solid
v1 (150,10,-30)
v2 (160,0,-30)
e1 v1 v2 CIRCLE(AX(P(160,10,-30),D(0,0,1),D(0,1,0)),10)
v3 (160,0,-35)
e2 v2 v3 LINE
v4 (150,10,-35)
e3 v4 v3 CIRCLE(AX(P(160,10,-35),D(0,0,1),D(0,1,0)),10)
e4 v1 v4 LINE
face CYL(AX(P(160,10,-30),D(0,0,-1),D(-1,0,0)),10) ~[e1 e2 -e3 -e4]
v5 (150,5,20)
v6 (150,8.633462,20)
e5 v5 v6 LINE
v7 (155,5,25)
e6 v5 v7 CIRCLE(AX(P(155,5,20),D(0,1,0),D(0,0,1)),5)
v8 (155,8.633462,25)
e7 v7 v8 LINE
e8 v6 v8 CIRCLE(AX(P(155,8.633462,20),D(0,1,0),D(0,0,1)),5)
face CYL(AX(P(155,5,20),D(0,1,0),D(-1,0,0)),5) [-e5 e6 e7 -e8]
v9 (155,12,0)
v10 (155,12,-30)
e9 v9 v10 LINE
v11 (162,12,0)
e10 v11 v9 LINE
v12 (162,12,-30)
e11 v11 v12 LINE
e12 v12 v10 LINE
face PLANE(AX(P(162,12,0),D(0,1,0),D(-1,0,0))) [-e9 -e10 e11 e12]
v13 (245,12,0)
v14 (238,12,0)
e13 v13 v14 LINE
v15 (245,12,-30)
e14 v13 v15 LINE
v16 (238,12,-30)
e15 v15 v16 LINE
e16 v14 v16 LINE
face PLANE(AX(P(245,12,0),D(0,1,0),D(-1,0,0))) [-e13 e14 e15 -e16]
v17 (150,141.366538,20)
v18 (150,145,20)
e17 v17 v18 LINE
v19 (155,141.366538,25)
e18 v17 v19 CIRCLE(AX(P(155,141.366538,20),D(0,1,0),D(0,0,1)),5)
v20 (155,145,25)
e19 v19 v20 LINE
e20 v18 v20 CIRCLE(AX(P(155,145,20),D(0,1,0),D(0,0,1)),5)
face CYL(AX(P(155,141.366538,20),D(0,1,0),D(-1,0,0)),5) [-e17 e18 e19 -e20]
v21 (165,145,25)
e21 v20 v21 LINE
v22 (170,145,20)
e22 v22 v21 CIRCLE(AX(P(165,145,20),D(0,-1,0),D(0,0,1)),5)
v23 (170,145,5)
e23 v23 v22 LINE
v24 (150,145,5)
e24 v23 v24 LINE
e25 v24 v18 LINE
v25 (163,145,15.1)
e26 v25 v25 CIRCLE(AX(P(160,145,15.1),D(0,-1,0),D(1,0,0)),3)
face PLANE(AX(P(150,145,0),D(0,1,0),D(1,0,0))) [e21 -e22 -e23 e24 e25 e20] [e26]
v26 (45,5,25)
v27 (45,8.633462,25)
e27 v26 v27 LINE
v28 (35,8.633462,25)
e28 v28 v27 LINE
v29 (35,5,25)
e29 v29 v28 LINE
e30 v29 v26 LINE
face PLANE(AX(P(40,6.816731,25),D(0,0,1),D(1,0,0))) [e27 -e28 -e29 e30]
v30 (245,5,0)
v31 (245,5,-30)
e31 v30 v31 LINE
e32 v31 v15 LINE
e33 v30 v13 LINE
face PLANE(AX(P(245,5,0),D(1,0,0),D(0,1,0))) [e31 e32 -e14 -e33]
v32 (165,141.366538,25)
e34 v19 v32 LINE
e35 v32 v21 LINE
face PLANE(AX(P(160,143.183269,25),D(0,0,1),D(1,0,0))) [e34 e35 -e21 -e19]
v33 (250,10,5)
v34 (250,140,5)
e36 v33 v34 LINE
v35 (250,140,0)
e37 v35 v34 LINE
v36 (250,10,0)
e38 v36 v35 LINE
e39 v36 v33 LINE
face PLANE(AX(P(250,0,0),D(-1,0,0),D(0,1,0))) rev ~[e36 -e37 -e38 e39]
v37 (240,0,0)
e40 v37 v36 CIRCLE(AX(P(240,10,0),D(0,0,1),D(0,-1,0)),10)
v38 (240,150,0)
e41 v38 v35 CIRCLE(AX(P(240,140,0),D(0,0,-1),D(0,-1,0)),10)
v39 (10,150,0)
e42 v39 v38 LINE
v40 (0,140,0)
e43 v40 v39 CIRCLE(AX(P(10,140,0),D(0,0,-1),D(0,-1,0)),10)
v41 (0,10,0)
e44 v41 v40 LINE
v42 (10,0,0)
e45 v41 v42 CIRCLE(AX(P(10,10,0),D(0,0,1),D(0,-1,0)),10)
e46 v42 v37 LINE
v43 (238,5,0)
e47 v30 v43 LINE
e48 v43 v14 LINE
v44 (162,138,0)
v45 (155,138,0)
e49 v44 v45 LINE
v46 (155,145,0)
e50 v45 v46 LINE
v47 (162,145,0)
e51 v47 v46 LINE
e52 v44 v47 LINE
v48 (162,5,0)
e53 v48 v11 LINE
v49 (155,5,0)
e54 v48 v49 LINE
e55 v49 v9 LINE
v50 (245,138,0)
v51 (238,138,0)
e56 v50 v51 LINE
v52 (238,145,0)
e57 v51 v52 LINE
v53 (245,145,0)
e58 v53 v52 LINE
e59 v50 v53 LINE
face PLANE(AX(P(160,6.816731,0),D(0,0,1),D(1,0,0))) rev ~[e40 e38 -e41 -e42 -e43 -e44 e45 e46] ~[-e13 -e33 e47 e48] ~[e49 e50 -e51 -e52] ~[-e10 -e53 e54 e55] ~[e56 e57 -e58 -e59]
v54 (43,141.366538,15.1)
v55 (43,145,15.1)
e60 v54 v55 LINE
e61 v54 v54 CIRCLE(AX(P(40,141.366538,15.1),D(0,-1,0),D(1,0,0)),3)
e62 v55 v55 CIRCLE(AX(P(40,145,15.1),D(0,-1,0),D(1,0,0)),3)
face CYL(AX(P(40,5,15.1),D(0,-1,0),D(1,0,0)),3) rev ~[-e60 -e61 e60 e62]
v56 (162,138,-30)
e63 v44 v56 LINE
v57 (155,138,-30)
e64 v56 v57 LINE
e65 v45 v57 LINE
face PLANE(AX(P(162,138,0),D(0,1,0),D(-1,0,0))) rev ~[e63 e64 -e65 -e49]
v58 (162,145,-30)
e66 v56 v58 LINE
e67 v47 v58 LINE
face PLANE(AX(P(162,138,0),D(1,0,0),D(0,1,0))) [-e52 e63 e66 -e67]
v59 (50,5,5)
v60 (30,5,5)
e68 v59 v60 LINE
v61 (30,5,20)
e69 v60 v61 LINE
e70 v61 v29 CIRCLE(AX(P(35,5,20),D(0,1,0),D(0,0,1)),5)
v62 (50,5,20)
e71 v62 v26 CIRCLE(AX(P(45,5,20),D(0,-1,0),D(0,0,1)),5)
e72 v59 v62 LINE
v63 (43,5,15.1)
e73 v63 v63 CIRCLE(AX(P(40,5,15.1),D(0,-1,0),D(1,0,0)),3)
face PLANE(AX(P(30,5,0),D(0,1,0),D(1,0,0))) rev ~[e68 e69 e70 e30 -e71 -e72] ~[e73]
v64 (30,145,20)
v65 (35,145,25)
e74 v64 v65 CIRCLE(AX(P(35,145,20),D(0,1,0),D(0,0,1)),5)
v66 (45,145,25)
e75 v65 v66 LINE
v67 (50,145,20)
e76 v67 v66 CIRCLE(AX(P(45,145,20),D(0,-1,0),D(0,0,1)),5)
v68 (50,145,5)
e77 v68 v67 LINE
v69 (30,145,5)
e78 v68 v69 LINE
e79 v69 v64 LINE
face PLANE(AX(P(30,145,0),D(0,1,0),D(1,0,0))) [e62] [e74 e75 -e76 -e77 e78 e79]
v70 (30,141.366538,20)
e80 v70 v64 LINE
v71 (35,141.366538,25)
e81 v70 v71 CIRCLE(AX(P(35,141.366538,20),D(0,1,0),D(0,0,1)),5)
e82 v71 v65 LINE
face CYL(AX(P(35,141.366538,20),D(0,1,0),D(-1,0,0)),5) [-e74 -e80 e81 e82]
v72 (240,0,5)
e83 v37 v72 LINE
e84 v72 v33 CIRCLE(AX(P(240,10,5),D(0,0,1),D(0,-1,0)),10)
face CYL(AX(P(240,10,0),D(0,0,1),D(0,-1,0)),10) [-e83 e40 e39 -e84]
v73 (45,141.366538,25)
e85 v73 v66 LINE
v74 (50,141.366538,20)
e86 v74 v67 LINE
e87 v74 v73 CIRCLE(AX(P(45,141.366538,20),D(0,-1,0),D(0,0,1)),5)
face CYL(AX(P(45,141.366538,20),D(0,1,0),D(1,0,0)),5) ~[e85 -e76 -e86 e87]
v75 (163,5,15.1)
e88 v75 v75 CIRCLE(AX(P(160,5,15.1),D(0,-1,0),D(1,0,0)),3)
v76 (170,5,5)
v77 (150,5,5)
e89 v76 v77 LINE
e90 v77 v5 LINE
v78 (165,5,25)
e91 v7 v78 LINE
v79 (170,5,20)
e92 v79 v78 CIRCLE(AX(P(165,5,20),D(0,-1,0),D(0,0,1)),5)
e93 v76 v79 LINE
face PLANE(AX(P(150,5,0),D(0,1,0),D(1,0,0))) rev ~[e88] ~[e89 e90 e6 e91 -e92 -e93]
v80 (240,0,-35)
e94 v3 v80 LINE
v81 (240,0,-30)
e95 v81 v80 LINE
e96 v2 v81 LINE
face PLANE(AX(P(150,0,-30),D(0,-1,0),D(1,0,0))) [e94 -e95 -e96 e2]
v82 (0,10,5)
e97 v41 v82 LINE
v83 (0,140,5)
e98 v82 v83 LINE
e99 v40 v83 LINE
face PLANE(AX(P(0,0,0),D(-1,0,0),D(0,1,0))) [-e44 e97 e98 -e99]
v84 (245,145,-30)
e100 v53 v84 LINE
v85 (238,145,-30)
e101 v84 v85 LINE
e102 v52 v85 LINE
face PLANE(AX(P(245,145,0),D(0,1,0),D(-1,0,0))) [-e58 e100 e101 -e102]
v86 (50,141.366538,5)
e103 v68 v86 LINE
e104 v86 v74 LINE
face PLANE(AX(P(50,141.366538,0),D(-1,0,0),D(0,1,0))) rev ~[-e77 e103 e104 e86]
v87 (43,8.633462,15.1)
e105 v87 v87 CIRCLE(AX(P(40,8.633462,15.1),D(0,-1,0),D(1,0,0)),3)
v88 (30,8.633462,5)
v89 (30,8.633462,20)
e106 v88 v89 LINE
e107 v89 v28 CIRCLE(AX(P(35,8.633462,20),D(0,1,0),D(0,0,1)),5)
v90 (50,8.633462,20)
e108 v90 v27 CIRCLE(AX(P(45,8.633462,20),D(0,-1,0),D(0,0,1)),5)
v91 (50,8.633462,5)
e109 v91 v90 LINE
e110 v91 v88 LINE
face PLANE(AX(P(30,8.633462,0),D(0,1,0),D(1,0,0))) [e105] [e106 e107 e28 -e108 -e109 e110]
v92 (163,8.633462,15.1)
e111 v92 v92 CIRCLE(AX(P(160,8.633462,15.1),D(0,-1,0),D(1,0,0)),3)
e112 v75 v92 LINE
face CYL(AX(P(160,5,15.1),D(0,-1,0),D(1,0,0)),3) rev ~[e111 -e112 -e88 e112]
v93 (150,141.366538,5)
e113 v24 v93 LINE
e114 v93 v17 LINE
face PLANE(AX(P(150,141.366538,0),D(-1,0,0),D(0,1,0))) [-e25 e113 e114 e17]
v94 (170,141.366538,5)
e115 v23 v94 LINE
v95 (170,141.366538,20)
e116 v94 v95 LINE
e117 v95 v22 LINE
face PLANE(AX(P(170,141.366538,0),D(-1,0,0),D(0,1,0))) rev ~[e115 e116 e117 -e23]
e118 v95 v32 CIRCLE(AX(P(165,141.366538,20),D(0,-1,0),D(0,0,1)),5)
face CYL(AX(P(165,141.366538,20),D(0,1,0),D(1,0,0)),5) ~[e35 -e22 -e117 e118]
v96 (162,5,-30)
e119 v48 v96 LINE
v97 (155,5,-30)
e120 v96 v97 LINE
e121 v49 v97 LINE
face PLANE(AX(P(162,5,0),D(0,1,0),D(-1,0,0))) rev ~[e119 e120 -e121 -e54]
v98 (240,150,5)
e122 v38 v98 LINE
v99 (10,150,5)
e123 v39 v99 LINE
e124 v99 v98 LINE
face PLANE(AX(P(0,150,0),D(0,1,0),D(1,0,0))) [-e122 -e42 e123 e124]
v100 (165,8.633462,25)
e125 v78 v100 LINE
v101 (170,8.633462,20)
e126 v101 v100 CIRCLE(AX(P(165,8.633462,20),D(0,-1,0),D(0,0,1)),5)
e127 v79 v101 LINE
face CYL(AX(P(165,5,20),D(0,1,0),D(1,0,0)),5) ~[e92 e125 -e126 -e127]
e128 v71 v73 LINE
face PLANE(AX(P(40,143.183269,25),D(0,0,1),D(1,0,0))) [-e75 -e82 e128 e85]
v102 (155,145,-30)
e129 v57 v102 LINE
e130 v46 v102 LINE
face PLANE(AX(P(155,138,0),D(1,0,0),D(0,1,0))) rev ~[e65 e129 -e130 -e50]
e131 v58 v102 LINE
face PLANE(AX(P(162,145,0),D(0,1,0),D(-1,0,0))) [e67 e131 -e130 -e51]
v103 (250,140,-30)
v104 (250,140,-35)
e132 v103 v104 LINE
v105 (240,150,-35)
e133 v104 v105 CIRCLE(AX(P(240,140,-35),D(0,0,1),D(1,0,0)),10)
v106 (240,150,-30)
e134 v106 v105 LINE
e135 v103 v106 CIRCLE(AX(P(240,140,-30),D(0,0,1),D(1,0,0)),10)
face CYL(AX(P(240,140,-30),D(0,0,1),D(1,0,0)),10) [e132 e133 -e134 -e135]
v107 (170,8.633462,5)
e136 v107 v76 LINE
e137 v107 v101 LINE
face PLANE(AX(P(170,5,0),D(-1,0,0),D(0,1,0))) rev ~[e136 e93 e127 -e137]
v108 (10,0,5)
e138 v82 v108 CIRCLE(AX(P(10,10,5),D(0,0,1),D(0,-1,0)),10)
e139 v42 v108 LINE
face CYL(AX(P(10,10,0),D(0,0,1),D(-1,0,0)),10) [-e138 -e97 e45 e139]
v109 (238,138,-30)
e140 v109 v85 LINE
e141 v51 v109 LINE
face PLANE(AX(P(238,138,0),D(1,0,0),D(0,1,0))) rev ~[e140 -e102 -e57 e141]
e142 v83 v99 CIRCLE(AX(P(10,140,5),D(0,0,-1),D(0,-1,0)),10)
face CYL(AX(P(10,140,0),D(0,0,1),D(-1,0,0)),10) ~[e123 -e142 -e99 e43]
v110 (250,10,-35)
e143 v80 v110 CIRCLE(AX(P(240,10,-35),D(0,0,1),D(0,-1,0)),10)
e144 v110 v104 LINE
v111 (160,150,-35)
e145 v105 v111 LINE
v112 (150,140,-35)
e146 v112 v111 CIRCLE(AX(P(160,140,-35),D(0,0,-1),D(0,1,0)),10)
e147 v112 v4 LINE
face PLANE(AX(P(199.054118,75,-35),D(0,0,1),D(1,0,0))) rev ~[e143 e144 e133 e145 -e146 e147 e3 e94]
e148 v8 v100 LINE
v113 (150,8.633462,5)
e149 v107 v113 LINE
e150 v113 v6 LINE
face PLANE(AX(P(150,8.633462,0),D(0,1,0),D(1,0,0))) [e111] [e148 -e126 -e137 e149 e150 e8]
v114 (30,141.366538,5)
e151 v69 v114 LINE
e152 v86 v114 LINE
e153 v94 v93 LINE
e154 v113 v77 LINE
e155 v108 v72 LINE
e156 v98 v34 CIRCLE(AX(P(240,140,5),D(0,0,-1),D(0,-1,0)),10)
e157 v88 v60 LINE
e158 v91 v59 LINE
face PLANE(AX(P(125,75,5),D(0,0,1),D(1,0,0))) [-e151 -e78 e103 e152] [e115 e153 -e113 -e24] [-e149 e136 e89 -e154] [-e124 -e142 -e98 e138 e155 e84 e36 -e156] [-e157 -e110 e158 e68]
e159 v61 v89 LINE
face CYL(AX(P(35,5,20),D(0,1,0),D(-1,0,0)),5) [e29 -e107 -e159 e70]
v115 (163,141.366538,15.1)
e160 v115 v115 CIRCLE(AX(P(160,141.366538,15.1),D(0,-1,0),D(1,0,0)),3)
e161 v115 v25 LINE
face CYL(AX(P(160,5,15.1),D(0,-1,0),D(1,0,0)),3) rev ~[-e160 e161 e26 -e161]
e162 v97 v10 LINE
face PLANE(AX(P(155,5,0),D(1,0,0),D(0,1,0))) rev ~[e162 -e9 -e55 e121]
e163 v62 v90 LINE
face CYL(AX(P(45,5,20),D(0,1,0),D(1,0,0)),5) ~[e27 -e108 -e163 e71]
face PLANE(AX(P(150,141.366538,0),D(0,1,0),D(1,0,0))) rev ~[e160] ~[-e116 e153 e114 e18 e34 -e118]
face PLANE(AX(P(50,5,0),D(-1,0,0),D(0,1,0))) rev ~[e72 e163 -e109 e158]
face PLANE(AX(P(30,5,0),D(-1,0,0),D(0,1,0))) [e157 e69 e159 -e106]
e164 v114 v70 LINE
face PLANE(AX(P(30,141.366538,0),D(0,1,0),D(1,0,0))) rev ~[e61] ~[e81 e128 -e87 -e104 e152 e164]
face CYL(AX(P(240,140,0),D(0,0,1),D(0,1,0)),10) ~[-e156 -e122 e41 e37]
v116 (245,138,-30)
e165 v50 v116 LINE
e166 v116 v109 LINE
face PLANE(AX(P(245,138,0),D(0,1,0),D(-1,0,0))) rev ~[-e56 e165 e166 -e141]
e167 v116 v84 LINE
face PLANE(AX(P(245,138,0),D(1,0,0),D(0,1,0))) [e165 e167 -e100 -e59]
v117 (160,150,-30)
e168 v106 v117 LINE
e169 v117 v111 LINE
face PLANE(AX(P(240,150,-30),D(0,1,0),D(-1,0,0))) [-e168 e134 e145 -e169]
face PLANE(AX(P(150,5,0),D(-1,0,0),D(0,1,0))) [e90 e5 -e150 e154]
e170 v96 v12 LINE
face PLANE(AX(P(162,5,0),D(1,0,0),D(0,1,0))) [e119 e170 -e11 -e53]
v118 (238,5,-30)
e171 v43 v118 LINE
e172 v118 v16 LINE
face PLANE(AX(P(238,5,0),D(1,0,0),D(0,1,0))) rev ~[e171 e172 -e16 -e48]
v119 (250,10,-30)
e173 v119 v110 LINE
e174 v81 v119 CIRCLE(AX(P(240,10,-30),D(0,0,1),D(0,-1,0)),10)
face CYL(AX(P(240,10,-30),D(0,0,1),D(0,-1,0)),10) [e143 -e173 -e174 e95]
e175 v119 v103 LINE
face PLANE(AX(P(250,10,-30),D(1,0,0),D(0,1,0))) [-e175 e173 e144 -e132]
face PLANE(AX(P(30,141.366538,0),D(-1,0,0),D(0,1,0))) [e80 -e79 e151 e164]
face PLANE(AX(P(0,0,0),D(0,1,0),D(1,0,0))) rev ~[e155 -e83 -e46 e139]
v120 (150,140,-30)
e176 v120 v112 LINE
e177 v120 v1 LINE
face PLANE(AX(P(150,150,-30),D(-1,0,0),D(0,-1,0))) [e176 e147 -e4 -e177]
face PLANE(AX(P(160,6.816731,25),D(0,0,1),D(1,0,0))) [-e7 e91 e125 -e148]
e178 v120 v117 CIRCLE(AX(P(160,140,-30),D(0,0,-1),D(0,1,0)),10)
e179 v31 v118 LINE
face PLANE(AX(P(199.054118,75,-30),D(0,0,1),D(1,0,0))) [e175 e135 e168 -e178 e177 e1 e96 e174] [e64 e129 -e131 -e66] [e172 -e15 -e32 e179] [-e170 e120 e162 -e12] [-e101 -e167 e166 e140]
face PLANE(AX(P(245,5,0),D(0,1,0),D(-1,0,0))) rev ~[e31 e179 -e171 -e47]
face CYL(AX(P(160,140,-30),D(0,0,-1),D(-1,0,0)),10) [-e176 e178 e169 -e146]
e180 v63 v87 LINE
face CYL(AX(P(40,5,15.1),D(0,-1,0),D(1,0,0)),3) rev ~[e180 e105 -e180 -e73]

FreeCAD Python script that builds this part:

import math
import FreeCAD as App
import Part
import Sketcher

V = App.Vector
Q = App.Units.Quantity


def edges_at(feature, points):
    """Names of the edges that pass closest to the given points."""
    edges = feature.Shape.Edges
    near = lambda p: min(range(len(edges)), key=lambda i: edges[i].distToShape(Part.Vertex(*p))[0])
    return sorted({f"Edge{near(p) + 1}" for p in points})


def add_polygon(sketch, points):
    """Adds a closed chain of lines whose ends are joined by coincident constraints."""
    first, n = sketch.GeometryCount, len(points)
    for a, b in zip(points, points[1:] + points[:1]):
        sketch.addGeometry(Part.LineSegment(App.Vector(*a, 0), App.Vector(*b, 0)), False)
    for i in range(n):
        sketch.addConstraint(Sketcher.Constraint("Coincident", first + i, 2, first + (i + 1) % n, 1))

doc = App.newDocument("Part")
body = doc.addObject("PartDesign::Body", "Body")

# Sketch on XY plane
sketch1 = body.newObject("Sketcher::SketchObject", "Sketch")
sketch1.AttachmentSupport = (doc.getObject("XY_Plane"), [""])
sketch1.MapMode = "FlatFace"
add_polygon(sketch1, [(0, 150), (0, 0), (250, 0), (250, 150)])  # lines 0-3
sketch1.addConstraint([
    Sketcher.Constraint("Vertical", 0),
    Sketcher.Constraint("Horizontal", 1),
    Sketcher.Constraint("Vertical", 2),
    Sketcher.Constraint("Horizontal", 3),
    Sketcher.Constraint("Coincident", 0, 2, -1, 1),
    Sketcher.Constraint("DistanceX", 1, 1, 1, 2, Q("250 mm")),
    Sketcher.Constraint("DistanceY", 0, 2, 0, 1, Q("150 mm")),
])
pad1 = body.newObject("PartDesign::Pad", "Pad")
pad1.Profile = sketch1
pad1.Length = 5

# Sketch on XY plane
sketch2 = body.newObject("Sketcher::SketchObject", "Sketch001")
sketch2.AttachmentSupport = (doc.getObject("XY_Plane"), [""])
sketch2.MapMode = "FlatFace"
add_polygon(sketch2, [(150, 8.6), (150, 5), (170, 5), (170, 8.6)])  # lines 0-3
add_polygon(sketch2, [(30, 145), (30, 141.4), (50, 141.4), (50, 145)])  # lines 4-7
add_polygon(sketch2, [(150, 145), (150, 141.4), (170, 141.4), (170, 145)])  # lines 8-11
add_polygon(sketch2, [(30, 8.6), (30, 5), (50, 5), (50, 8.6)])  # lines 12-15
sketch2.addConstraint([
    Sketcher.Constraint("Vertical", 0),
    Sketcher.Constraint("Horizontal", 1),
    Sketcher.Constraint("Vertical", 2),
    Sketcher.Constraint("Horizontal", 3),
    Sketcher.Constraint("Vertical", 4),
    Sketcher.Constraint("Horizontal", 5),
    Sketcher.Constraint("Vertical", 6),
    Sketcher.Constraint("Horizontal", 7),
    Sketcher.Constraint("Vertical", 8),
    Sketcher.Constraint("Horizontal", 9),
    Sketcher.Constraint("Vertical", 10),
    Sketcher.Constraint("Horizontal", 11),
    Sketcher.Constraint("Vertical", 12),
    Sketcher.Constraint("Horizontal", 13),
    Sketcher.Constraint("Vertical", 14),
    Sketcher.Constraint("Horizontal", 15),
    Sketcher.Constraint("Horizontal", 5, 2, 8, 2),
    Sketcher.Constraint("Horizontal", 7, 2, 10, 2),
    Sketcher.Constraint("Horizontal", 1, 2, 12, 2),
    Sketcher.Constraint("Horizontal", 3, 2, 14, 2),
    Sketcher.Constraint("Vertical", 3, 2, 8, 2),
    Sketcher.Constraint("Vertical", 2, 2, 9, 2),
    Sketcher.Constraint("Vertical", 7, 2, 12, 2),
    Sketcher.Constraint("Vertical", 6, 2, 13, 2),
    Sketcher.Constraint("Equal", 3, 5),
    Sketcher.Constraint("Equal", 2, 4),
    Sketcher.Constraint("DistanceX", 1, 1, 1, 2, Q("20 mm")),
    Sketcher.Constraint("DistanceX", -1, 1, 0, 2, Q("150 mm")),
    Sketcher.Constraint("DistanceY", -1, 1, 0, 2, Q("5 mm")),
    Sketcher.Constraint("DistanceX", -1, 1, 4, 2, Q("30 mm")),
    Sketcher.Constraint("DistanceY", -1, 1, 6, 2, Q("145 mm")),
    Sketcher.Constraint("DistanceY", 0, 2, 0, 1, Q("3.633462 mm")),
])
pad2 = body.newObject("PartDesign::Pad", "Pad001")
pad2.Profile = sketch2
pad2.Length = 25

# Sketch on XZ plane
sketch3 = body.newObject("Sketcher::SketchObject", "Sketch002")
sketch3.AttachmentSupport = (doc.getObject("XZ_Plane"), [""])
sketch3.MapMode = "FlatFace"
sketch3.AttachmentOffset = App.Placement(V(0, 0, -5), App.Rotation())
sketch3.addGeometry([
    Part.Circle(V(40, 15.1, 0), V(0, 0, 1), 3),
    Part.Circle(V(160, 15.1, 0), V(0, 0, 1), 3),
], False)
sketch3.addConstraint([
    Sketcher.Constraint("Equal", 0, 1),
    Sketcher.Constraint("Horizontal", 0, 3, 1, 3),
    Sketcher.Constraint("Diameter", 0, Q("6 mm")),
    Sketcher.Constraint("DistanceX", -1, 1, 0, 3, Q("40 mm")),
    Sketcher.Constraint("DistanceX", -1, 1, 1, 3, Q("160 mm")),
    Sketcher.Constraint("DistanceY", -1, 1, 0, 3, Q("15.1 mm")),
])
pocket1 = body.newObject("PartDesign::Pocket", "Pocket")
pocket1.Profile = sketch3
pocket1.Type = "ThroughAll"
pocket1.Midplane = True
doc.recompute()

fillet = body.newObject("PartDesign::Fillet", "Fillet")
fillet.Base = (pocket1, edges_at(pocket1, [
    (50, 143.183, 25),
    (30, 143.183, 25),
    (30, 6.817, 25),
    (50, 6.817, 25),
    (150, 6.817, 25),
    (170, 6.817, 25),
    (170, 143.183, 25),
    (150, 143.183, 25),
]))
fillet.Radius = 5
doc.recompute()

fillet2 = body.newObject("PartDesign::Fillet", "Fillet001")
fillet2.Base = (fillet, edges_at(fillet, [
    (0, 0, 2.5),
    (0, 150, 2.5),
    (250, 150, 2.5),
    (250, 0, 2.5),
]))
fillet2.Radius = 10

# Sketch on XY plane
sketch4 = body.newObject("Sketcher::SketchObject", "Sketch003")
sketch4.AttachmentSupport = (doc.getObject("XY_Plane"), [""])
sketch4.MapMode = "FlatFace"
add_polygon(sketch4, [(245, 145), (245, 138), (238, 138), (238, 145)])  # lines 0-3
add_polygon(sketch4, [(245, 12), (245, 5), (238, 5), (238, 12)])  # lines 4-7
add_polygon(sketch4, [(162, 12), (162, 5), (155, 5), (155, 12)])  # lines 8-11
add_polygon(sketch4, [(162, 145), (162, 138), (155, 138), (155, 145)])  # lines 12-15
sketch4.addConstraint([
    Sketcher.Constraint("Vertical", 0),
    Sketcher.Constraint("Horizontal", 1),
    Sketcher.Constraint("Vertical", 2),
    Sketcher.Constraint("Horizontal", 3),
    Sketcher.Constraint("Vertical", 4),
    Sketcher.Constraint("Horizontal", 5),
    Sketcher.Constraint("Vertical", 6),
    Sketcher.Constraint("Horizontal", 7),
    Sketcher.Constraint("Vertical", 8),
    Sketcher.Constraint("Horizontal", 9),
    Sketcher.Constraint("Vertical", 10),
    Sketcher.Constraint("Horizontal", 11),
    Sketcher.Constraint("Vertical", 12),
    Sketcher.Constraint("Horizontal", 13),
    Sketcher.Constraint("Vertical", 14),
    Sketcher.Constraint("Horizontal", 15),
    Sketcher.Constraint("Horizontal", 5, 2, 8, 2),
    Sketcher.Constraint("Horizontal", 7, 2, 10, 2),
    Sketcher.Constraint("Horizontal", 1, 2, 12, 2),
    Sketcher.Constraint("Horizontal", 3, 2, 14, 2),
    Sketcher.Constraint("Vertical", 3, 2, 4, 2),
    Sketcher.Constraint("Vertical", 2, 2, 5, 2),
    Sketcher.Constraint("Vertical", 11, 2, 12, 2),
    Sketcher.Constraint("Vertical", 10, 2, 13, 2),
    Sketcher.Constraint("Equal", 7, 9),
    Sketcher.Constraint("Equal", 15, 0),
    Sketcher.Constraint("Equal", 2, 4),
    Sketcher.Constraint("DistanceX", 1, 2, 1, 1, Q("7 mm")),
    Sketcher.Constraint("DistanceX", -1, 1, 0, 2, Q("245 mm")),
    Sketcher.Constraint("DistanceY", -1, 1, 0, 2, Q("138 mm")),
    Sketcher.Constraint("DistanceY", -1, 1, 4, 2, Q("5 mm")),
    Sketcher.Constraint("DistanceX", -1, 1, 8, 2, Q("162 mm")),
])
pad3 = body.newObject("PartDesign::Pad", "Pad002")
pad3.Profile = sketch4
pad3.Length = 30
pad3.Reversed = True

# Sketch on XY plane
sketch5 = body.newObject("Sketcher::SketchObject", "Sketch004")
sketch5.AttachmentSupport = (doc.getObject("XY_Plane"), [""])
sketch5.MapMode = "FlatFace"
sketch5.AttachmentOffset = App.Placement(V(0, 0, -30), App.Rotation())
sketch5.addGeometry([
    Part.LineSegment(V(150, 0, 0), V(150, 150, 0)),  # 0
    Part.LineSegment(V(150, 150, 0), V(240, 150, 0)),  # 1
    Part.ArcOfCircle(Part.Circle(V(240, 140, 0), V(0, 0, 1), 10), math.radians(0), math.radians(90)),  # 2
    Part.LineSegment(V(250, 140, 0), V(250, 10, 0)),  # 3
    Part.ArcOfCircle(Part.Circle(V(240, 10, 0), V(0, 0, 1), 10), math.radians(-90), math.radians(0)),  # 4
    Part.LineSegment(V(240, 0, 0), V(150, 0, 0)),  # 5
], False)
sketch5.addConstraint([
    Sketcher.Constraint("Coincident", 0, 2, 1, 1),
    Sketcher.Constraint("Tangent", 1, 2, 2, 2),
    Sketcher.Constraint("Tangent", 2, 1, 3, 1),
    Sketcher.Constraint("Tangent", 3, 2, 4, 2),
    Sketcher.Constraint("Tangent", 4, 1, 5, 1),
    Sketcher.Constraint("Coincident", 5, 2, 0, 1),
    Sketcher.Constraint("Vertical", 0),
    Sketcher.Constraint("Horizontal", 1),
    Sketcher.Constraint("Vertical", 3),
    Sketcher.Constraint("Horizontal", 5),
    Sketcher.Constraint("Equal", 2, 4),
    Sketcher.Constraint("PointOnObject", 4, 1, -1),
    Sketcher.Constraint("Radius", 2, Q("10 mm")),
    Sketcher.Constraint("DistanceX", 1, 1, 1, 2, Q("90 mm")),
    Sketcher.Constraint("DistanceY", 0, 1, 0, 2, Q("150 mm")),
    Sketcher.Constraint("DistanceX", -1, 1, 2, 3, Q("240 mm")),
])
pad4 = body.newObject("PartDesign::Pad", "Pad003")
pad4.Profile = sketch5
pad4.Length = 5
pad4.Reversed = True
doc.recompute()

fillet3 = body.newObject("PartDesign::Fillet", "Fillet002")
fillet3.Base = (pad4, edges_at(pad4, [(150, 150, -32.5), (150, 0, -32.5)]))
fillet3.Radius = 10

doc.recompute()
